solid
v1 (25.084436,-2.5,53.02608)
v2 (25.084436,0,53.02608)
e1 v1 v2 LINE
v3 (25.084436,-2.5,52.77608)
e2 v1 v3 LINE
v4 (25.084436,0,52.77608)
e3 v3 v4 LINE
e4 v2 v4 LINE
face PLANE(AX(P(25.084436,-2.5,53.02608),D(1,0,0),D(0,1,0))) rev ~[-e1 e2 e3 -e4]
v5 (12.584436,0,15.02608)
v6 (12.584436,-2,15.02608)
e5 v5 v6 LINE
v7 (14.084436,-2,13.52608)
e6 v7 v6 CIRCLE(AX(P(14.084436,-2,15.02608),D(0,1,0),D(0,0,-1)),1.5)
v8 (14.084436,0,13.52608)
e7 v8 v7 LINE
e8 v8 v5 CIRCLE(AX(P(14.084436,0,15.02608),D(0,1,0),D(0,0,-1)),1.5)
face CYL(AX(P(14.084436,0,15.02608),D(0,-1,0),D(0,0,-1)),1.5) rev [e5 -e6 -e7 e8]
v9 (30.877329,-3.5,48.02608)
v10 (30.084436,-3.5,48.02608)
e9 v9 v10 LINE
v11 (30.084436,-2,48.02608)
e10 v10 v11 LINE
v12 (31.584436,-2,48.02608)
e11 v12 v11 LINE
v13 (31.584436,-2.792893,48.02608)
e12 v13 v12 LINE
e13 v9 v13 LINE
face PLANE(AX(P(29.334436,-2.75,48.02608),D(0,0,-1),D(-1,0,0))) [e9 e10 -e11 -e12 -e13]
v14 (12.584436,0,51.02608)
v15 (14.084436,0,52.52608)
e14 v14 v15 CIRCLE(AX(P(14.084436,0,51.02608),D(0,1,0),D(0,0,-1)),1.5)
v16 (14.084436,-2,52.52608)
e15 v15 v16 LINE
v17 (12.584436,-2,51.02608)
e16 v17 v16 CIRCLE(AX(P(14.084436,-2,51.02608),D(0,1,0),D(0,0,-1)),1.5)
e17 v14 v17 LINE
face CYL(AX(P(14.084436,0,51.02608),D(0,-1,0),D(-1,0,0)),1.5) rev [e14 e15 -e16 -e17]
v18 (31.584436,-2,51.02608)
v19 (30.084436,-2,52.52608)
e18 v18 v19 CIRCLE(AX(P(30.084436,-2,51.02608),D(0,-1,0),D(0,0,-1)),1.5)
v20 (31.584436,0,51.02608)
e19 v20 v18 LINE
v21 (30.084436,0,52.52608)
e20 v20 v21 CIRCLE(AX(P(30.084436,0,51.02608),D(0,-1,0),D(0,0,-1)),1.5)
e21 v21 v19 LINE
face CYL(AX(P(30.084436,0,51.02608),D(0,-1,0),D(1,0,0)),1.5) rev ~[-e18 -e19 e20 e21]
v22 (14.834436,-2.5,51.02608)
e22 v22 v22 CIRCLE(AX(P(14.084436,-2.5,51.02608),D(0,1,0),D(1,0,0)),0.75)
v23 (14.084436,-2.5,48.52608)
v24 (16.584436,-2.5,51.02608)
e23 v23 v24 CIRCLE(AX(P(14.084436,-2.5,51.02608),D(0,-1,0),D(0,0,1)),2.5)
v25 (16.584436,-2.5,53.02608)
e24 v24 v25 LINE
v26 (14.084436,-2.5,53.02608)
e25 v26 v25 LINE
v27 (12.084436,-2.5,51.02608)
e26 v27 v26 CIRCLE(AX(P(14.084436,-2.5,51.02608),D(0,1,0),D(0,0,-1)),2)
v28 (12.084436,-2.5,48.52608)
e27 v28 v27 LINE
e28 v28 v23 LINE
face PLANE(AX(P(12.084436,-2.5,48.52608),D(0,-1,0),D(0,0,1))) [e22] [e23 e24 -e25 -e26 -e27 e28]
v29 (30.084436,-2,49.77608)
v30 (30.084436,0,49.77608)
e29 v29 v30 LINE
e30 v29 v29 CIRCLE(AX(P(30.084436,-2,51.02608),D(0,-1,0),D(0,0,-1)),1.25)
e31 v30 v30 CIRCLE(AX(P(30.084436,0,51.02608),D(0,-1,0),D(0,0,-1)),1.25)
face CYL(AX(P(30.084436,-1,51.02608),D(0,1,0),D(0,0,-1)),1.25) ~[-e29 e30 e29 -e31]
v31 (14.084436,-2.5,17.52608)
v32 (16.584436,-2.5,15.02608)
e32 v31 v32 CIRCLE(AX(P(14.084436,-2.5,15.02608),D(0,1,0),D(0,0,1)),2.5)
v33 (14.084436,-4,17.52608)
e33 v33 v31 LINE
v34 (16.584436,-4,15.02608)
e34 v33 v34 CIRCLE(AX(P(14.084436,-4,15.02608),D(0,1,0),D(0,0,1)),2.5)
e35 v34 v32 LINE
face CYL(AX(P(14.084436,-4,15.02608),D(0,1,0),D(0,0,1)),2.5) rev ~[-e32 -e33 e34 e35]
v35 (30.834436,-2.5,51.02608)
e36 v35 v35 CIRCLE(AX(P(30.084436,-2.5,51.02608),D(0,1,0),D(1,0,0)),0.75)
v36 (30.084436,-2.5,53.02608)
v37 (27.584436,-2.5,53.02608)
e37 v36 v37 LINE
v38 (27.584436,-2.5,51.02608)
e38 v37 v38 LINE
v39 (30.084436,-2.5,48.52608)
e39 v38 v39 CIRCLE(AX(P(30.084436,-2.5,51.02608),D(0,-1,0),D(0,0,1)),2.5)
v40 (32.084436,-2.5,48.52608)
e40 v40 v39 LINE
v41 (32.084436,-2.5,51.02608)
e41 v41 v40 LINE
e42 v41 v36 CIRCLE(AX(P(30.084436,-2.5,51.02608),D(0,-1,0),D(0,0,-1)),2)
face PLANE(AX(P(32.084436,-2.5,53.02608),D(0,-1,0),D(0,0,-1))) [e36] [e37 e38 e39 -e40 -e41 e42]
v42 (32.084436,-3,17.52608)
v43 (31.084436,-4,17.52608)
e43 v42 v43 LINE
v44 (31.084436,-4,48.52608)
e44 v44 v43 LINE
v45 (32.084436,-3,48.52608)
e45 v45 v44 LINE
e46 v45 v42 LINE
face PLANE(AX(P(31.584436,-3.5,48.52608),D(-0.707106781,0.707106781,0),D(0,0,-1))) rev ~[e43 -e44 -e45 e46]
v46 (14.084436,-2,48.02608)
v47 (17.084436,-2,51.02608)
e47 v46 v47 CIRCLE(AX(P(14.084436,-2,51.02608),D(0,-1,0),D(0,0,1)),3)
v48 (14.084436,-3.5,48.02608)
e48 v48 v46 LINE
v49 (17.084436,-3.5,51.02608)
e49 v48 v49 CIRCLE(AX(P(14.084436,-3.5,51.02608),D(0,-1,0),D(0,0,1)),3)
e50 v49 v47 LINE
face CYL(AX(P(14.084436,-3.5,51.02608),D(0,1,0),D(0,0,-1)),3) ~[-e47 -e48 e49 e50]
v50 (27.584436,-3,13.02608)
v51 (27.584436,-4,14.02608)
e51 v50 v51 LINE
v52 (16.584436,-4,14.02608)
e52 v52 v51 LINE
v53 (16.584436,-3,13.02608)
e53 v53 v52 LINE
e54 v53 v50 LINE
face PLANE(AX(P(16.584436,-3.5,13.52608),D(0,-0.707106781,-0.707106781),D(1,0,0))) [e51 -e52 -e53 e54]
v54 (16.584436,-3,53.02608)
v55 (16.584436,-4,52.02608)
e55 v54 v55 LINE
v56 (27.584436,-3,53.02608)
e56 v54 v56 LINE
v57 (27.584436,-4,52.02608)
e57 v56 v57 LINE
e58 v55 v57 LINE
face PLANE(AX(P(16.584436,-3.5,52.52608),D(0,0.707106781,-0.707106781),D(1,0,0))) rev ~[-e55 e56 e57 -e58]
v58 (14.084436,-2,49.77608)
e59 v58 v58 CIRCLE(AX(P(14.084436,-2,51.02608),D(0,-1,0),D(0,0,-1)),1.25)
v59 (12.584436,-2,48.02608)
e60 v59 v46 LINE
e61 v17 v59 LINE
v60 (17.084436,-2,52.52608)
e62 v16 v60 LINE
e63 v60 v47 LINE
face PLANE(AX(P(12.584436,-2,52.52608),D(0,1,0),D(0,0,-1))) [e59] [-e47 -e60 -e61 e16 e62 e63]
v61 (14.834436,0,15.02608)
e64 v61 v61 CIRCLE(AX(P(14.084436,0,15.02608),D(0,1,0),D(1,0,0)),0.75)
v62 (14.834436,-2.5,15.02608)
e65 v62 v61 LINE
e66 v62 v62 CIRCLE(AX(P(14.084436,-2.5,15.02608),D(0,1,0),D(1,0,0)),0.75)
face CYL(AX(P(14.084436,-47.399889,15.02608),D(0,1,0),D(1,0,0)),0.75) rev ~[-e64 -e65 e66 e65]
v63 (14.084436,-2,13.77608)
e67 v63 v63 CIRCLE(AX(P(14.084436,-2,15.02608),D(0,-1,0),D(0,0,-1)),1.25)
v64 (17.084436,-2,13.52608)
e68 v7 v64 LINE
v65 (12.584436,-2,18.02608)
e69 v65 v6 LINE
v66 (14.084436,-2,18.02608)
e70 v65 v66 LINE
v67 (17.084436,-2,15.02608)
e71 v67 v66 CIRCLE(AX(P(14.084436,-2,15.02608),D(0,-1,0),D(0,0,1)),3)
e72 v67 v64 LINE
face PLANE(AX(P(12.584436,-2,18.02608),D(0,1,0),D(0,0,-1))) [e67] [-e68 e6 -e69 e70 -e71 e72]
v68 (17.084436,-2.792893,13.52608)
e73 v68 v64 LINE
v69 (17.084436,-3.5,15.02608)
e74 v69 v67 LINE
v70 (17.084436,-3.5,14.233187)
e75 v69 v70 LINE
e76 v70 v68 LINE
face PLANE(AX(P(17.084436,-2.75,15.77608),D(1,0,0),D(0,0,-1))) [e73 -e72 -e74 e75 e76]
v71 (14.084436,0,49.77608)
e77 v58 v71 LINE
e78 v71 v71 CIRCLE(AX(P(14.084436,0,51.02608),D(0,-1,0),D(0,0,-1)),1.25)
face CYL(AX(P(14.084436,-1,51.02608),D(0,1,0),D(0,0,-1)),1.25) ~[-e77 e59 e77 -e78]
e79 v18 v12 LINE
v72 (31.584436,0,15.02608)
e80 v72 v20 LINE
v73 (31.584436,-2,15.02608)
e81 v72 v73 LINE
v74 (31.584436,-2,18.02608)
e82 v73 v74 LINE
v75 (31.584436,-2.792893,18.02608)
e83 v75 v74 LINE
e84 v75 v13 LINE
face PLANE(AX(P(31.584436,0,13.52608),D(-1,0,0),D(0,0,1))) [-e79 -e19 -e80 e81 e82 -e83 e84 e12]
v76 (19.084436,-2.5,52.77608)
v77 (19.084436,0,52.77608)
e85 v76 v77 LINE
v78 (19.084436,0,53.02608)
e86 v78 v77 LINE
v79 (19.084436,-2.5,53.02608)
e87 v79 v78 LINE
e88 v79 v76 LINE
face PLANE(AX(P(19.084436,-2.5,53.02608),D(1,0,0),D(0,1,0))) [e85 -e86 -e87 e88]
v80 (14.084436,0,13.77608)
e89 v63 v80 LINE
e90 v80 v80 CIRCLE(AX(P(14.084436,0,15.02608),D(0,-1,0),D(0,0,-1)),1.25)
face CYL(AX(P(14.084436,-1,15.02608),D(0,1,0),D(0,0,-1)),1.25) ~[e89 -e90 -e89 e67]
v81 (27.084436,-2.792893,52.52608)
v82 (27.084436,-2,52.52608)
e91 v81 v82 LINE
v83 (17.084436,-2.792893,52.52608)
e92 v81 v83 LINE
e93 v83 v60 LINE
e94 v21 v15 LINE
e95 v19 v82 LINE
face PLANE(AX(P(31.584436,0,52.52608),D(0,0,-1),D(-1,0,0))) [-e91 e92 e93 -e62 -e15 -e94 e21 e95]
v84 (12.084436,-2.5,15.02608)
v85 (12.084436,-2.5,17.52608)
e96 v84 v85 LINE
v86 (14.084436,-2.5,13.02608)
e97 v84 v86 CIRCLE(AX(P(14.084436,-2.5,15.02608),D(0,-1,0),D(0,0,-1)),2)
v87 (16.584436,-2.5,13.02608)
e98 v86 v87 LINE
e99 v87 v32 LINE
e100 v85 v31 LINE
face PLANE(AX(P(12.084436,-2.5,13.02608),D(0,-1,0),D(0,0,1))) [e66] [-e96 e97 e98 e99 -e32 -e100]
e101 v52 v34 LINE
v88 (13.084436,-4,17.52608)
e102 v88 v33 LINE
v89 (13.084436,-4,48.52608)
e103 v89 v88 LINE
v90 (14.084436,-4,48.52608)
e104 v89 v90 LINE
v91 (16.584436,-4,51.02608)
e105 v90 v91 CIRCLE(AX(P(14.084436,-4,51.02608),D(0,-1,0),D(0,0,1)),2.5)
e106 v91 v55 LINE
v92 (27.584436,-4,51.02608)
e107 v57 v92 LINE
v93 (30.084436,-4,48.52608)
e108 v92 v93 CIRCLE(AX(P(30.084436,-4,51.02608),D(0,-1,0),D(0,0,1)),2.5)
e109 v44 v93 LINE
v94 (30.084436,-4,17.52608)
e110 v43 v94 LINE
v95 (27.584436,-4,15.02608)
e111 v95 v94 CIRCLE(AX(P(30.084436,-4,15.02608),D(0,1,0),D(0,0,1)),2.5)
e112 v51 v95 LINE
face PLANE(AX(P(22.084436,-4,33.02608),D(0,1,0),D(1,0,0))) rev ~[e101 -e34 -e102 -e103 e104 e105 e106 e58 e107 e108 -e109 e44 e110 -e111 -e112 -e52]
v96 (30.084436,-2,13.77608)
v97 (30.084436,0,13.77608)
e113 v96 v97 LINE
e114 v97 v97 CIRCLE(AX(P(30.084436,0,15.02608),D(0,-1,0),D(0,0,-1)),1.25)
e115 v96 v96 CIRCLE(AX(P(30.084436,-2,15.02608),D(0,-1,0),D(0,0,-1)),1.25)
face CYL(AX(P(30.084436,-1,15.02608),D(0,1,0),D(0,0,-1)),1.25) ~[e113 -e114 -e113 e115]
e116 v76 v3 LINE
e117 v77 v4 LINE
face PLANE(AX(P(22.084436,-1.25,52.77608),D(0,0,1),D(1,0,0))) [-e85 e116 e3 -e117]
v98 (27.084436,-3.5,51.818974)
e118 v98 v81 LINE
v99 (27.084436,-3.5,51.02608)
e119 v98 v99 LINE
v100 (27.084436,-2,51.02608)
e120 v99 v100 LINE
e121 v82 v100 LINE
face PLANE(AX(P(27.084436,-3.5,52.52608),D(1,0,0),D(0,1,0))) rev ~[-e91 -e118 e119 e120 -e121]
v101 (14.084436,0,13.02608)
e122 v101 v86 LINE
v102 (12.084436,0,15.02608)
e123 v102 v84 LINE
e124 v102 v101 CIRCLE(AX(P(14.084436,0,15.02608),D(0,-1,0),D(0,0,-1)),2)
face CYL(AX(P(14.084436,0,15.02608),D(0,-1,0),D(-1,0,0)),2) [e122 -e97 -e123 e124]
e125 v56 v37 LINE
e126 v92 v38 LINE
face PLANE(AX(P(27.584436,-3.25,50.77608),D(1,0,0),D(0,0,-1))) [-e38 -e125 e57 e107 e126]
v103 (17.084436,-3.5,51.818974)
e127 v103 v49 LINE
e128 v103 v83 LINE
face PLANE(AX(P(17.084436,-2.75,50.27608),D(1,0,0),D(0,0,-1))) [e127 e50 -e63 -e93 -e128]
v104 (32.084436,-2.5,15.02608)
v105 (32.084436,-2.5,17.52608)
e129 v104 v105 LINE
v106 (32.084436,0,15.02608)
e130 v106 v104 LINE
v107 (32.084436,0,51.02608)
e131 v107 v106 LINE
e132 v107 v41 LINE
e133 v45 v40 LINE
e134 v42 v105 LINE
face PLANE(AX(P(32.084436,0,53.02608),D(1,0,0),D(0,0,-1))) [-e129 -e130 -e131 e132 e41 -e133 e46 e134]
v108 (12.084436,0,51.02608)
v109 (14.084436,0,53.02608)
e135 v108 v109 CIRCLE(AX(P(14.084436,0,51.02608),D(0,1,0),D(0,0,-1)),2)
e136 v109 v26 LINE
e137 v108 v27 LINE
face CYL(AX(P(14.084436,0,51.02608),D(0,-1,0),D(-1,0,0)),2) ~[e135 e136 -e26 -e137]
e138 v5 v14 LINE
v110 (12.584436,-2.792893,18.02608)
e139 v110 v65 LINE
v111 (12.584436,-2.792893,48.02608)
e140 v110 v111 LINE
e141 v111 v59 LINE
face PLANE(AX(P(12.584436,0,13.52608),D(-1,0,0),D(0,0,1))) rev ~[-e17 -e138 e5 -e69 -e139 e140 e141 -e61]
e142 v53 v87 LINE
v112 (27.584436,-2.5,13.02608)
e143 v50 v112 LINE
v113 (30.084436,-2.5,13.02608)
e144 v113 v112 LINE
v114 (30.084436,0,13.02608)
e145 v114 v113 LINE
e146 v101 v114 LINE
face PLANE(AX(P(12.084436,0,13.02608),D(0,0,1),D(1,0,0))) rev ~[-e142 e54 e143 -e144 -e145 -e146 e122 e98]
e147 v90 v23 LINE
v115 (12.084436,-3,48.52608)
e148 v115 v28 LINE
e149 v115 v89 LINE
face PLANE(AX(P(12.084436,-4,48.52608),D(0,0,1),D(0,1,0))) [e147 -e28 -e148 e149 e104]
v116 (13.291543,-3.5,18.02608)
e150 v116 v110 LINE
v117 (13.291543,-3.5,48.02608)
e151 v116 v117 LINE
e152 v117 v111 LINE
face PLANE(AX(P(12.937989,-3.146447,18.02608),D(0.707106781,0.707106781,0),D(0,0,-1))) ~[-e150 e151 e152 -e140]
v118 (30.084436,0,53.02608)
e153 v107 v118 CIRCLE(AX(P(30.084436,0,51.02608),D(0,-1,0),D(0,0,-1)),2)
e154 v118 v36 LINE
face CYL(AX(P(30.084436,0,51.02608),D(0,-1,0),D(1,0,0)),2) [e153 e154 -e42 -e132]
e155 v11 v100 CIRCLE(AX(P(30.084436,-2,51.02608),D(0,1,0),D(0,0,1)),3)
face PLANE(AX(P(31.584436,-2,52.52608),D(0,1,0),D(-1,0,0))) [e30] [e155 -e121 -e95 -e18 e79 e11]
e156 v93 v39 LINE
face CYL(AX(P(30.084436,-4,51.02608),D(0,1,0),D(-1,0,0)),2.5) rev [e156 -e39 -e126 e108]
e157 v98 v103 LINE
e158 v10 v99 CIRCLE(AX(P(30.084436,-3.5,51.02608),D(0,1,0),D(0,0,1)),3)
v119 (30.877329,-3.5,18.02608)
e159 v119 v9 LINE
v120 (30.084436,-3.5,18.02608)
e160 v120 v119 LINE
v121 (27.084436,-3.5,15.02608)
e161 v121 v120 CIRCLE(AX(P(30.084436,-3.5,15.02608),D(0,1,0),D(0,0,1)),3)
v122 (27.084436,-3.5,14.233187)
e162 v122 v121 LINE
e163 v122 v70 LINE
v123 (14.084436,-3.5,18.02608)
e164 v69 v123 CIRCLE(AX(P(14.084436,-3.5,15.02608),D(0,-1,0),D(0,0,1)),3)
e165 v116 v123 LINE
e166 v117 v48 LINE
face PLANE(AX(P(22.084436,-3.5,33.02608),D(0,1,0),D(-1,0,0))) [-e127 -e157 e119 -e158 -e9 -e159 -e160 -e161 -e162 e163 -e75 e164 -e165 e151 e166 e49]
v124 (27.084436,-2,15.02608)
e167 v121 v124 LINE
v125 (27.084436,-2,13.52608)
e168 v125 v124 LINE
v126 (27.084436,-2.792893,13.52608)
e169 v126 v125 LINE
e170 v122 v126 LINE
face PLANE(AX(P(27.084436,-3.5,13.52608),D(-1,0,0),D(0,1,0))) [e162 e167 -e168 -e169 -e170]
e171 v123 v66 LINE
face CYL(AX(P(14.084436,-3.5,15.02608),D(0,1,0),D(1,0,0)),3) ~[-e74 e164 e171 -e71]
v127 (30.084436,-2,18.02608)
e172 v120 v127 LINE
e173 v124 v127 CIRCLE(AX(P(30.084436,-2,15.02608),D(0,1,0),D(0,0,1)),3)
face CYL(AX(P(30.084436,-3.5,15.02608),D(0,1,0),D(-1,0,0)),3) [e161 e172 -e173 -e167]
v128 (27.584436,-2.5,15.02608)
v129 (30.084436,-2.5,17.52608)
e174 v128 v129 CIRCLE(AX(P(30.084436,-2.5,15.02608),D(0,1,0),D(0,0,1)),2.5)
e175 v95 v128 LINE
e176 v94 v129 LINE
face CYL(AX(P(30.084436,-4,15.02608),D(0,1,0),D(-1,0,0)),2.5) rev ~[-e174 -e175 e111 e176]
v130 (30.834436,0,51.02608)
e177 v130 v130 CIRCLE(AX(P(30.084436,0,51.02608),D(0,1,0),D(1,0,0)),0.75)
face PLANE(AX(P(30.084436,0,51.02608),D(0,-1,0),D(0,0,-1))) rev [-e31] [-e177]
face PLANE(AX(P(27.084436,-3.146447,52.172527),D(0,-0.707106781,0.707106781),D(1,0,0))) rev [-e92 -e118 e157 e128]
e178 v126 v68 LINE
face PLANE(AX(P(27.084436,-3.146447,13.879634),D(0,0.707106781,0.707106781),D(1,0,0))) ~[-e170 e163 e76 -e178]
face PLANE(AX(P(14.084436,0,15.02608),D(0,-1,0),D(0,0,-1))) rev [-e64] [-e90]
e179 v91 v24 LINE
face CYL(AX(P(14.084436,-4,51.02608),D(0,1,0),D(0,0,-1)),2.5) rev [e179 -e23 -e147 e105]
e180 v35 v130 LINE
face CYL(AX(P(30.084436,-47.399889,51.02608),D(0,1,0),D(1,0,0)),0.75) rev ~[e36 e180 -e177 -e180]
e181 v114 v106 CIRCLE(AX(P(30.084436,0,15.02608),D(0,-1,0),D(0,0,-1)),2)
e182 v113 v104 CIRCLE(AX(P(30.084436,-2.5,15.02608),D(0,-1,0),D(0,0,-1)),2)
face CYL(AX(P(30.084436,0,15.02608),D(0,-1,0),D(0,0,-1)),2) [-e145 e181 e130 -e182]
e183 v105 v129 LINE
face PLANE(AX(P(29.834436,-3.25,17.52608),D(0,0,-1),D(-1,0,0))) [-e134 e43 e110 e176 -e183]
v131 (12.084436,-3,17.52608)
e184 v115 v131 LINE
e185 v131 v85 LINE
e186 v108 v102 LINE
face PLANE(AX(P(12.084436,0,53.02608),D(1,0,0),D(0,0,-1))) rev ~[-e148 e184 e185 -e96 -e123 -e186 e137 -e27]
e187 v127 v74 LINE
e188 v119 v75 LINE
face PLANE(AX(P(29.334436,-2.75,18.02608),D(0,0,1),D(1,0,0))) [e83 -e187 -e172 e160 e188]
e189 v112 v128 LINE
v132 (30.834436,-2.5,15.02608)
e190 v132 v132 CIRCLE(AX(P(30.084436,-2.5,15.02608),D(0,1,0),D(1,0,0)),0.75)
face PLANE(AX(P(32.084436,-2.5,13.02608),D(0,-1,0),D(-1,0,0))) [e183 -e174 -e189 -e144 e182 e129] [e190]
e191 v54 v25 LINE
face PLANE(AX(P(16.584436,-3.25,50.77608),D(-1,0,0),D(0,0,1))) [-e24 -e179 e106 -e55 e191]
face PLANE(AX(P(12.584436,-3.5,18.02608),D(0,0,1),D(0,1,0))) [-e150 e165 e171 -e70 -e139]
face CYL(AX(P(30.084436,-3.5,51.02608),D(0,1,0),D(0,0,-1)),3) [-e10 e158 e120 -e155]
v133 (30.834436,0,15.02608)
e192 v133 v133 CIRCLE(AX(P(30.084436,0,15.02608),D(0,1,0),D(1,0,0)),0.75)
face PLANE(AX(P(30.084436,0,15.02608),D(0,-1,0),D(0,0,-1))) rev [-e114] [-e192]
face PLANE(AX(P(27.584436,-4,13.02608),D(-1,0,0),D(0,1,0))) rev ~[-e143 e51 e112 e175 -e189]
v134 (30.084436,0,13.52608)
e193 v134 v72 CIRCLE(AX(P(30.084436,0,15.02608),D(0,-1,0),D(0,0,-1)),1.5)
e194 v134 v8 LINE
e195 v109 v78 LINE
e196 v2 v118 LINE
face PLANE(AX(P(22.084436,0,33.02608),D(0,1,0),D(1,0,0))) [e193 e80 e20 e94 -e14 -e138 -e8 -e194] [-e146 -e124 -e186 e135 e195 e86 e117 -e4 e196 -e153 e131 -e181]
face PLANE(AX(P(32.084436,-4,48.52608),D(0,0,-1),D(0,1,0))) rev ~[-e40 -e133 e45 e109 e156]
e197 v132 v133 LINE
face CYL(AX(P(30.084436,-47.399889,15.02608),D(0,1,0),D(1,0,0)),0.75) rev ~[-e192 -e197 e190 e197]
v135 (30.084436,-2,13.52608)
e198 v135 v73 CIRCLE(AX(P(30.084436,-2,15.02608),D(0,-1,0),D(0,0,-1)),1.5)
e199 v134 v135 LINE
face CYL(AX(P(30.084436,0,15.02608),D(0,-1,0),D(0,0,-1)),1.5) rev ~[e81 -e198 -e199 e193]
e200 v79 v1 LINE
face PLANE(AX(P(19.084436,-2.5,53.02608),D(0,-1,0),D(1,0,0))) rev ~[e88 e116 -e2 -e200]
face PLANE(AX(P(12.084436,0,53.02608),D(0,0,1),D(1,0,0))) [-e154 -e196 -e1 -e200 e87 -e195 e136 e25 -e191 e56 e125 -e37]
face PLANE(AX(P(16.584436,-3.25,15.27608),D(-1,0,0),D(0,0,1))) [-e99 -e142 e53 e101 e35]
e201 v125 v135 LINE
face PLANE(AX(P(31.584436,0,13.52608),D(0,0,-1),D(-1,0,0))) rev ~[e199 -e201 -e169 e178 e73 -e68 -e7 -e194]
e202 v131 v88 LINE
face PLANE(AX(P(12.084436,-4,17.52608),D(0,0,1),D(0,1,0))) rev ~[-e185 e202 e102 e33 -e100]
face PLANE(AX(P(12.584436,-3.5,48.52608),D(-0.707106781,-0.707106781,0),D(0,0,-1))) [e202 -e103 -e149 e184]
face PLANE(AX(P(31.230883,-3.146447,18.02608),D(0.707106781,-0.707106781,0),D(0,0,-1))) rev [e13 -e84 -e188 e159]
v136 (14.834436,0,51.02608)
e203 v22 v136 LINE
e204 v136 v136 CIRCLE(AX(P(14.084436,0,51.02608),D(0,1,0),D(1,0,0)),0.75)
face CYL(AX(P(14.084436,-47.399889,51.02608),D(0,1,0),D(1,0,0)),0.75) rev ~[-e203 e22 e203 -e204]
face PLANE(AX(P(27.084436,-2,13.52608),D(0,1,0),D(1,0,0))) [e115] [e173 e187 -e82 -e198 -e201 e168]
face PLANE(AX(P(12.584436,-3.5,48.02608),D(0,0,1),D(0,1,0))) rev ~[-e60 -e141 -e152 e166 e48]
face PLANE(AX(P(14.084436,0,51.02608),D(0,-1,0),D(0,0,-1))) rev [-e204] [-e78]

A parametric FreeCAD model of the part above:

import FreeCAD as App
import Part
import Sketcher
from FreeCAD import Vector
Q = App.Units.Quantity


def edges_at(feature, points):
    """Names of the edges that pass closest to the given points."""
    edges = feature.Shape.Edges
    near = lambda p: min(range(len(edges)), key=lambda i: edges[i].distToShape(Part.Vertex(*p))[0])
    return sorted({f"Edge{near(p) + 1}" for p in points})

doc = App.newDocument("Part")
body = doc.addObject("PartDesign::Body", "Body")

sketch1 = body.newObject("Sketcher::SketchObject", "Sketch")
sketch1.AttachmentSupport = (doc.getObject("XZ_Plane"), [""])
sketch1.MapMode = "FlatFace"
sketch1.addGeometry([
    Part.LineSegment(Vector(12, 13, 0), Vector(12, 53, 0)),
    Part.LineSegment(Vector(12, 53, 0), Vector(32, 53, 0)),
    Part.LineSegment(Vector(32, 53, 0), Vector(32, 13, 0)),
    Part.LineSegment(Vector(32, 13, 0), Vector(12, 13, 0)),
], False)
sketch1.addConstraint([
    Sketcher.Constraint("Coincident", 0, 2, 1, 1),
    Sketcher.Constraint("Coincident", 1, 2, 2, 1),
    Sketcher.Constraint("Coincident", 2, 2, 3, 1),
    Sketcher.Constraint("Coincident", 3, 2, 0, 1),
    Sketcher.Constraint("Vertical", 0),
    Sketcher.Constraint("Horizontal", 1),
    Sketcher.Constraint("Vertical", 2),
    Sketcher.Constraint("Horizontal", 3),
    Sketcher.Constraint("DistanceX", 1, 1, 1, 2, Q("20 mm")),
    Sketcher.Constraint("DistanceY", 0, 1, 0, 2, Q("40 mm")),
    Sketcher.Constraint("DistanceY", -1, 1, 0, 2, Q("53.02608 mm")),
    Sketcher.Constraint("DistanceX", -1, 1, 0, 2, Q("12.084436 mm")),
])
pad1 = body.newObject("PartDesign::Pad", "Pad")
pad1.Profile = sketch1
pad1.Length = 4

sketch2 = body.newObject("Sketcher::SketchObject", "Sketch001")
sketch2.AttachmentSupport = (doc.getObject("XZ_Plane"), [""])
sketch2.MapMode = "FlatFace"
sketch2.addGeometry([
    Part.LineSegment(Vector(32, 53, 0), Vector(32, 14, 0)),
    Part.LineSegment(Vector(32, 14, 0), Vector(13, 14, 0)),
    Part.LineSegment(Vector(13, 14, 0), Vector(13, 53, 0)),
    Part.LineSegment(Vector(13, 53, 0), Vector(32, 53, 0)),
], False)
sketch2.addConstraint([
    Sketcher.Constraint("Coincident", 0, 2, 1, 1),
    Sketcher.Constraint("Coincident", 1, 2, 2, 1),
    Sketcher.Constraint("Coincident", 2, 2, 3, 1),
    Sketcher.Constraint("Coincident", 3, 2, 0, 1),
    Sketcher.Constraint("Vertical", 0),
    Sketcher.Constraint("Horizontal", 1),
    Sketcher.Constraint("Vertical", 2),
    Sketcher.Constraint("Horizontal", 3),
    Sketcher.Constraint("DistanceX", 1, 2, 1, 1, Q("19 mm")),
    Sketcher.Constraint("DistanceY", 0, 2, 0, 1, Q("39 mm")),
    Sketcher.Constraint("DistanceY", -1, 1, 0, 2, Q("13.52608 mm")),
    Sketcher.Constraint("DistanceX", -1, 1, 0, 2, Q("31.584436 mm")),
])
pocket1 = body.newObject("PartDesign::Pocket", "Pocket")
pocket1.Profile = sketch2
pocket1.Length = 3.5
pocket1.Reversed = True

sketch3 = body.newObject("Sketcher::SketchObject", "Sketch002")
sketch3.AttachmentSupport = (doc.getObject("YZ_Plane"), [""])
sketch3.MapMode = "FlatFace"
sketch3.AttachmentOffset = App.Placement(Vector(0, 0, 12.584436), App.Rotation())
sketch3.addGeometry([
    Part.LineSegment(Vector(-2, 18, 0), Vector(-3.5, 18, 0)),
    Part.LineSegment(Vector(-3.5, 18, 0), Vector(-3.5, 13.5, 0)),
    Part.LineSegment(Vector(-3.5, 13.5, 0), Vector(-2, 13.5, 0)),
    Part.LineSegment(Vector(-2, 13.5, 0), Vector(-2, 18, 0)),
], False)
sketch3.addConstraint([
    Sketcher.Constraint("Coincident", 0, 2, 1, 1),
    Sketcher.Constraint("Coincident", 1, 2, 2, 1),
    Sketcher.Constraint("Coincident", 2, 2, 3, 1),
    Sketcher.Constraint("Coincident", 3, 2, 0, 1),
    Sketcher.Constraint("Horizontal", 0),
    Sketcher.Constraint("Vertical", 1),
    Sketcher.Constraint("Horizontal", 2),
    Sketcher.Constraint("Vertical", 3),
    Sketcher.Constraint("DistanceX", 0, 2, 0, 1, Q("1.5 mm")),
    Sketcher.Constraint("DistanceY", 1, 2, 1, 1, Q("4.5 mm")),
    Sketcher.Constraint("DistanceX", 2, 2, -1, 1, Q("2 mm")),
    Sketcher.Constraint("DistanceY", -1, 1, 0, 2, Q("18.02608 mm")),
])
pad2 = body.newObject("PartDesign::Pad", "Pad001")
pad2.Profile = sketch3
pad2.Length = 4.5

sketch4 = body.newObject("Sketcher::SketchObject", "Sketch003")
sketch4.AttachmentSupport = (doc.getObject("XY_Plane"), [""])
sketch4.MapMode = "FlatFace"
sketch4.AttachmentOffset = App.Placement(Vector(0, 0, 13.52608), App.Rotation())
sketch4.addGeometry([
    Part.LineSegment(Vector(27.1, -2, 0), Vector(27.1, -3.5, 0)),
    Part.LineSegment(Vector(27.1, -3.5, 0), Vector(31.6, -3.5, 0)),
    Part.LineSegment(Vector(31.6, -3.5, 0), Vector(31.6, -2, 0)),
    Part.LineSegment(Vector(31.6, -2, 0), Vector(27.1, -2, 0)),
], False)
sketch4.addConstraint([
    Sketcher.Constraint("Coincident", 0, 2, 1, 1),
    Sketcher.Constraint("Coincident", 1, 2, 2, 1),
    Sketcher.Constraint("Coincident", 2, 2, 3, 1),
    Sketcher.Constraint("Coincident", 3, 2, 0, 1),
    Sketcher.Constraint("Vertical", 0),
    Sketcher.Constraint("Horizontal", 1),
    Sketcher.Constraint("Vertical", 2),
    Sketcher.Constraint("Horizontal", 3),
    Sketcher.Constraint("DistanceX", 1, 1, 1, 2, Q("4.5 mm")),
    Sketcher.Constraint("DistanceY", 0, 2, 0, 1, Q("1.5 mm")),
    Sketcher.Constraint("DistanceY", 2, 2, -1, 1, Q("2 mm")),
    Sketcher.Constraint("DistanceX", -1, 1, 0, 2, Q("27.084436 mm")),
])
pad3 = body.newObject("PartDesign::Pad", "Pad002")
pad3.Profile = sketch4
pad3.Length = 4.5

sketch5 = body.newObject("Sketcher::SketchObject", "Sketch004")
sketch5.AttachmentSupport = (doc.getObject("YZ_Plane"), [""])
sketch5.MapMode = "FlatFace"
sketch5.AttachmentOffset = App.Placement(Vector(0, 0, 12.584436), App.Rotation())
sketch5.addGeometry([
    Part.LineSegment(Vector(-2, 52.5, 0), Vector(-3.5, 52.5, 0)),
    Part.LineSegment(Vector(-3.5, 52.5, 0), Vector(-3.5, 48, 0)),
    Part.LineSegment(Vector(-3.5, 48, 0), Vector(-2, 48, 0)),
    Part.LineSegment(Vector(-2, 48, 0), Vector(-2, 52.5, 0)),
], False)
sketch5.addConstraint([
    Sketcher.Constraint("Coincident", 0, 2, 1, 1),
    Sketcher.Constraint("Coincident", 1, 2, 2, 1),
    Sketcher.Constraint("Coincident", 2, 2, 3, 1),
    Sketcher.Constraint("Coincident", 3, 2, 0, 1),
    Sketcher.Constraint("Horizontal", 0),
    Sketcher.Constraint("Vertical", 1),
    Sketcher.Constraint("Horizontal", 2),
    Sketcher.Constraint("Vertical", 3),
    Sketcher.Constraint("DistanceX", 0, 2, 0, 1, Q("1.5 mm")),
    Sketcher.Constraint("DistanceY", 1, 2, 1, 1, Q("4.5 mm")),
    Sketcher.Constraint("DistanceX", 2, 2, -1, 1, Q("2 mm")),
    Sketcher.Constraint("DistanceY", -1, 1, 0, 2, Q("52.52608 mm")),
])
pad4 = body.newObject("PartDesign::Pad", "Pad003")
pad4.Profile = sketch5
pad4.Length = 4.5

sketch6 = body.newObject("Sketcher::SketchObject", "Sketch005")
sketch6.AttachmentSupport = (doc.getObject("XY_Plane"), [""])
sketch6.MapMode = "FlatFace"
sketch6.AttachmentOffset = App.Placement(Vector(0, 0, 52.52608), App.Rotation())
sketch6.addGeometry([
    Part.LineSegment(Vector(31.6, -2, 0), Vector(31.6, -3.5, 0)),
    Part.LineSegment(Vector(31.6, -3.5, 0), Vector(27.1, -3.5, 0)),
    Part.LineSegment(Vector(27.1, -3.5, 0), Vector(27.1, -2, 0)),
    Part.LineSegment(Vector(27.1, -2, 0), Vector(31.6, -2, 0)),
], False)
sketch6.addConstraint([
    Sketcher.Constraint("Coincident", 0, 2, 1, 1),
    Sketcher.Constraint("Coincident", 1, 2, 2, 1),
    Sketcher.Constraint("Coincident", 2, 2, 3, 1),
    Sketcher.Constraint("Coincident", 3, 2, 0, 1),
    Sketcher.Constraint("Vertical", 0),
    Sketcher.Constraint("Horizontal", 1),
    Sketcher.Constraint("Vertical", 2),
    Sketcher.Constraint("Horizontal", 3),
    Sketcher.Constraint("DistanceX", 1, 2, 1, 1, Q("4.5 mm")),
    Sketcher.Constraint("DistanceY", 0, 2, 0, 1, Q("1.5 mm")),
    Sketcher.Constraint("DistanceY", 2, 2, -1, 1, Q("2 mm")),
    Sketcher.Constraint("DistanceX", -1, 1, 0, 2, Q("31.584436 mm")),
])
pad5 = body.newObject("PartDesign::Pad", "Pad004")
pad5.Profile = sketch6
pad5.Length = 4.5
pad5.Reversed = True

sketch7 = body.newObject("Sketcher::SketchObject", "Sketch006")
sketch7.AttachmentSupport = (doc.getObject("YZ_Plane"), [""])
sketch7.MapMode = "FlatFace"
sketch7.AttachmentOffset = App.Placement(Vector(0, 0, 12.084436), App.Rotation())
sketch7.addGeometry([
    Part.LineSegment(Vector(-2.5, 13, 0), Vector(-4, 13, 0)),
    Part.LineSegment(Vector(-4, 13, 0), Vector(-4, 17.5, 0)),
    Part.LineSegment(Vector(-4, 17.5, 0), Vector(-2.5, 17.5, 0)),
    Part.LineSegment(Vector(-2.5, 17.5, 0), Vector(-2.5, 13, 0)),
], False)
sketch7.addConstraint([
    Sketcher.Constraint("Coincident", 0, 2, 1, 1),
    Sketcher.Constraint("Coincident", 1, 2, 2, 1),
    Sketcher.Constraint("Coincident", 2, 2, 3, 1),
    Sketcher.Constraint("Coincident", 3, 2, 0, 1),
    Sketcher.Constraint("Horizontal", 0),
    Sketcher.Constraint("Vertical", 1),
    Sketcher.Constraint("Horizontal", 2),
    Sketcher.Constraint("Vertical", 3),
    Sketcher.Constraint("DistanceX", 0, 2, 0, 1, Q("1.5 mm")),
    Sketcher.Constraint("DistanceY", 1, 1, 1, 2, Q("4.5 mm")),
    Sketcher.Constraint("DistanceX", 0, 2, -1, 1, Q("4 mm")),
    Sketcher.Constraint("DistanceY", -1, 1, 0, 2, Q("13.02608 mm")),
])
pocket2 = body.newObject("PartDesign::Pocket", "Pocket001")
pocket2.Profile = sketch7
pocket2.Length = 4.5
pocket2.Reversed = True

sketch8 = body.newObject("Sketcher::SketchObject", "Sketch007")
sketch8.AttachmentSupport = (doc.getObject("XY_Plane"), [""])
sketch8.MapMode = "FlatFace"
sketch8.AttachmentOffset = App.Placement(Vector(0, 0, 13.02608), App.Rotation())
sketch8.addGeometry([
    Part.LineSegment(Vector(32.1, -2.5, 0), Vector(32.1, -4, 0)),
    Part.LineSegment(Vector(32.1, -4, 0), Vector(27.6, -4, 0)),
    Part.LineSegment(Vector(27.6, -4, 0), Vector(27.6, -2.5, 0)),
    Part.LineSegment(Vector(27.6, -2.5, 0), Vector(32.1, -2.5, 0)),
], False)
sketch8.addConstraint([
    Sketcher.Constraint("Coincident", 0, 2, 1, 1),
    Sketcher.Constraint("Coincident", 1, 2, 2, 1),
    Sketcher.Constraint("Coincident", 2, 2, 3, 1),
    Sketcher.Constraint("Coincident", 3, 2, 0, 1),
    Sketcher.Constraint("Vertical", 0),
    Sketcher.Constraint("Horizontal", 1),
    Sketcher.Constraint("Vertical", 2),
    Sketcher.Constraint("Horizontal", 3),
    Sketcher.Constraint("DistanceX", 1, 2, 1, 1, Q("4.5 mm")),
    Sketcher.Constraint("DistanceY", 0, 2, 0, 1, Q("1.5 mm")),
    Sketcher.Constraint("DistanceY", 0, 2, -1, 1, Q("4 mm")),
    Sketcher.Constraint("DistanceX", -1, 1, 0, 2, Q("32.084436 mm")),
])
pocket3 = body.newObject("PartDesign::Pocket", "Pocket002")
pocket3.Profile = sketch8
pocket3.Length = 4.5
pocket3.Reversed = True

sketch9 = body.newObject("Sketcher::SketchObject", "Sketch008")
sketch9.AttachmentSupport = (doc.getObject("YZ_Plane"), [""])
sketch9.MapMode = "FlatFace"
sketch9.AttachmentOffset = App.Placement(Vector(0, 0, 12.084436), App.Rotation())
sketch9.addGeometry([
    Part.LineSegment(Vector(-2.5, 48.5, 0), Vector(-4, 48.5, 0)),
    Part.LineSegment(Vector(-4, 48.5, 0), Vector(-4, 53, 0)),
    Part.LineSegment(Vector(-4, 53, 0), Vector(-2.5, 53, 0)),
    Part.LineSegment(Vector(-2.5, 53, 0), Vector(-2.5, 48.5, 0)),
], False)
sketch9.addConstraint([
    Sketcher.Constraint("Coincident", 0, 2, 1, 1),
    Sketcher.Constraint("Coincident", 1, 2, 2, 1),
    Sketcher.Constraint("Coincident", 2, 2, 3, 1),
    Sketcher.Constraint("Coincident", 3, 2, 0, 1),
    Sketcher.Constraint("Horizontal", 0),
    Sketcher.Constraint("Vertical", 1),
    Sketcher.Constraint("Horizontal", 2),
    Sketcher.Constraint("Vertical", 3),
    Sketcher.Constraint("DistanceX", 0, 2, 0, 1, Q("1.5 mm")),
    Sketcher.Constraint("DistanceY", 1, 1, 1, 2, Q("4.5 mm")),
    Sketcher.Constraint("DistanceX", 0, 2, -1, 1, Q("4 mm")),
    Sketcher.Constraint("DistanceY", -1, 1, 0, 2, Q("48.52608 mm")),
])
pocket4 = body.newObject("PartDesign::Pocket", "Pocket003")
pocket4.Profile = sketch9
pocket4.Length = 4.5
pocket4.Reversed = True

sketch10 = body.newObject("Sketcher::SketchObject", "Sketch009")
sketch10.AttachmentSupport = (doc.getObject("YZ_Plane"), [""])
sketch10.MapMode = "FlatFace"
sketch10.AttachmentOffset = App.Placement(Vector(0, 0, 32.084436), App.Rotation())
sketch10.addGeometry([
    Part.LineSegment(Vector(-2.5, 53, 0), Vector(-4, 53, 0)),
    Part.LineSegment(Vector(-4, 53, 0), Vector(-4, 48.5, 0)),
    Part.LineSegment(Vector(-4, 48.5, 0), Vector(-2.5, 48.5, 0)),
    Part.LineSegment(Vector(-2.5, 48.5, 0), Vector(-2.5, 53, 0)),
], False)
sketch10.addConstraint([
    Sketcher.Constraint("Coincident", 0, 2, 1, 1),
    Sketcher.Constraint("Coincident", 1, 2, 2, 1),
    Sketcher.Constraint("Coincident", 2, 2, 3, 1),
    Sketcher.Constraint("Coincident", 3, 2, 0, 1),
    Sketcher.Constraint("Horizontal", 0),
    Sketcher.Constraint("Vertical", 1),
    Sketcher.Constraint("Horizontal", 2),
    Sketcher.Constraint("Vertical", 3),
    Sketcher.Constraint("DistanceX", 0, 2, 0, 1, Q("1.5 mm")),
    Sketcher.Constraint("DistanceY", 1, 2, 1, 1, Q("4.5 mm")),
    Sketcher.Constraint("DistanceX", 0, 2, -1, 1, Q("4 mm")),
    Sketcher.Constraint("DistanceY", -1, 1, 0, 2, Q("53.02608 mm")),
])
pocket5 = body.newObject("PartDesign::Pocket", "Pocket004")
pocket5.Profile = sketch10
pocket5.Length = 4.5

sketch11 = body.newObject("Sketcher::SketchObject", "Sketch010")
sketch11.AttachmentSupport = (doc.getObject("XY_Plane"), [""])
sketch11.MapMode = "FlatFace"
sketch11.AttachmentOffset = App.Placement(Vector(0, 0, 53.02608), App.Rotation())
sketch11.addGeometry([
    Part.LineSegment(Vector(19.1, 0, 0), Vector(19.1, -2.5, 0)),
    Part.LineSegment(Vector(19.1, -2.5, 0), Vector(25.1, -2.5, 0)),
    Part.LineSegment(Vector(25.1, -2.5, 0), Vector(25.1, 0, 0)),
    Part.LineSegment(Vector(25.1, 0, 0), Vector(19.1, 0, 0)),
], False)
sketch11.addConstraint([
    Sketcher.Constraint("Coincident", 0, 2, 1, 1),
    Sketcher.Constraint("Coincident", 1, 2, 2, 1),
    Sketcher.Constraint("Coincident", 2, 2, 3, 1),
    Sketcher.Constraint("Coincident", 3, 2, 0, 1),
    Sketcher.Constraint("Vertical", 0),
    Sketcher.Constraint("Horizontal", 1),
    Sketcher.Constraint("Vertical", 2),
    Sketcher.Constraint("Horizontal", 3),
    Sketcher.Constraint("PointOnObject", 2, 2, -1),
    Sketcher.Constraint("DistanceX", 1, 1, 1, 2, Q("6 mm")),
    Sketcher.Constraint("DistanceY", 0, 2, 0, 1, Q("2.5 mm")),
    Sketcher.Constraint("DistanceX", -1, 1, 0, 2, Q("19.084436 mm")),
])
pocket6 = body.newObject("PartDesign::Pocket", "Pocket005")
pocket6.Profile = sketch11
pocket6.Length = 0.25

sketch12 = body.newObject("Sketcher::SketchObject", "Sketch011")
sketch12.AttachmentSupport = (doc.getObject("XY_Plane"), [""])
sketch12.MapMode = "FlatFace"
sketch12.AttachmentOffset = App.Placement(Vector(0, 0, 15.02608), App.Rotation())
sketch12.addGeometry([
    Part.LineSegment(Vector(30.1, 0, 0), Vector(30.1, -2, 0)),
    Part.LineSegment(Vector(30.1, -2, 0), Vector(31.3, -2, 0)),
    Part.LineSegment(Vector(31.3, -2, 0), Vector(31.3, 0, 0)),
    Part.LineSegment(Vector(31.3, 0, 0), Vector(30.1, 0, 0)),
], False)
sketch12.addGeometry(Part.LineSegment(Vector(30.1, 0, 0), Vector(30.1, -2, 0)), True)
sketch12.addConstraint([
    Sketcher.Constraint("Coincident", 0, 2, 1, 1),
    Sketcher.Constraint("Coincident", 1, 2, 2, 1),
    Sketcher.Constraint("Coincident", 2, 2, 3, 1),
    Sketcher.Constraint("Coincident", 3, 2, 0, 1),
    Sketcher.Constraint("Vertical", 0),
    Sketcher.Constraint("Horizontal", 1),
    Sketcher.Constraint("Vertical", 2),
    Sketcher.Constraint("Horizontal", 3),
    Sketcher.Constraint("Vertical", 4),
    Sketcher.Constraint("Coincident", 4, 1, 3, 2),
    Sketcher.Constraint("PointOnObject", 2, 2, -1),
    Sketcher.Constraint("Horizontal", 1, 2, 4, 2),
    Sketcher.Constraint("DistanceY", 0, 2, 0, 1, Q("2 mm")),
    Sketcher.Constraint("DistanceX", 1, 1, 1, 2, Q("1.25 mm")),
    Sketcher.Constraint("DistanceX", -1, 1, 0, 2, Q("30.084436 mm")),
])
revolution = body.newObject("PartDesign::Revolution", "Revolution")
revolution.Profile = sketch12
revolution.ReferenceAxis = (sketch12, ["Axis0"])
revolution.Angle = 360

sketch13 = body.newObject("Sketcher::SketchObject", "Sketch012")
sketch13.AttachmentSupport = (doc.getObject("XY_Plane"), [""])
sketch13.MapMode = "FlatFace"
sketch13.AttachmentOffset = App.Placement(Vector(0, 0, 15.02608), App.Rotation())
sketch13.addGeometry([
    Part.LineSegment(Vector(14.1, 0, 0), Vector(14.1, -2, 0)),
    Part.LineSegment(Vector(14.1, -2, 0), Vector(15.3, -2, 0)),
    Part.LineSegment(Vector(15.3, -2, 0), Vector(15.3, 0, 0)),
    Part.LineSegment(Vector(15.3, 0, 0), Vector(14.1, 0, 0)),
], False)
sketch13.addGeometry(Part.LineSegment(Vector(14.1, 0, 0), Vector(14.1, -2, 0)), True)
sketch13.addConstraint([
    Sketcher.Constraint("Coincident", 0, 2, 1, 1),
    Sketcher.Constraint("Coincident", 1, 2, 2, 1),
    Sketcher.Constraint("Coincident", 2, 2, 3, 1),
    Sketcher.Constraint("Coincident", 3, 2, 0, 1),
    Sketcher.Constraint("Vertical", 0),
    Sketcher.Constraint("Horizontal", 1),
    Sketcher.Constraint("Vertical", 2),
    Sketcher.Constraint("Horizontal", 3),
    Sketcher.Constraint("Vertical", 4),
    Sketcher.Constraint("Coincident", 4, 1, 3, 2),
    Sketcher.Constraint("PointOnObject", 2, 2, -1),
    Sketcher.Constraint("Horizontal", 1, 2, 4, 2),
    Sketcher.Constraint("DistanceY", 0, 2, 0, 1, Q("2 mm")),
    Sketcher.Constraint("DistanceX", 1, 1, 1, 2, Q("1.25 mm")),
    Sketcher.Constraint("DistanceX", -1, 1, 0, 2, Q("14.084436 mm")),
])
revolution2 = body.newObject("PartDesign::Revolution", "Revolution001")
revolution2.Profile = sketch13
revolution2.ReferenceAxis = (sketch13, ["Axis0"])
revolution2.Angle = 360

sketch14 = body.newObject("Sketcher::SketchObject", "Sketch013")
sketch14.AttachmentSupport = (doc.getObject("XY_Plane"), [""])
sketch14.MapMode = "FlatFace"
sketch14.AttachmentOffset = App.Placement(Vector(0, 0, 51.02608), App.Rotation())
sketch14.addGeometry([
    Part.LineSegment(Vector(14.1, 0, 0), Vector(14.1, -2, 0)),
    Part.LineSegment(Vector(14.1, -2, 0), Vector(15.3, -2, 0)),
    Part.LineSegment(Vector(15.3, -2, 0), Vector(15.3, 0, 0)),
    Part.LineSegment(Vector(15.3, 0, 0), Vector(14.1, 0, 0)),
], False)
sketch14.addGeometry(Part.LineSegment(Vector(14.1, 0, 0), Vector(14.1, -2, 0)), True)
sketch14.addConstraint([
    Sketcher.Constraint("Coincident", 0, 2, 1, 1),
    Sketcher.Constraint("Coincident", 1, 2, 2, 1),
    Sketcher.Constraint("Coincident", 2, 2, 3, 1),
    Sketcher.Constraint("Coincident", 3, 2, 0, 1),
    Sketcher.Constraint("Vertical", 0),
    Sketcher.Constraint("Horizontal", 1),
    Sketcher.Constraint("Vertical", 2),
    Sketcher.Constraint("Horizontal", 3),
    Sketcher.Constraint("Vertical", 4),
    Sketcher.Constraint("Coincident", 4, 1, 3, 2),
    Sketcher.Constraint("PointOnObject", 2, 2, -1),
    Sketcher.Constraint("Horizontal", 1, 2, 4, 2),
    Sketcher.Constraint("DistanceY", 0, 2, 0, 1, Q("2 mm")),
    Sketcher.Constraint("DistanceX", 1, 1, 1, 2, Q("1.25 mm")),
    Sketcher.Constraint("DistanceX", -1, 1, 0, 2, Q("14.084436 mm")),
])
revolution3 = body.newObject("PartDesign::Revolution", "Revolution002")
revolution3.Profile = sketch14
revolution3.ReferenceAxis = (sketch14, ["Axis0"])
revolution3.Angle = 360

sketch15 = body.newObject("Sketcher::SketchObject", "Sketch014")
sketch15.AttachmentSupport = (doc.getObject("XY_Plane"), [""])
sketch15.MapMode = "FlatFace"
sketch15.AttachmentOffset = App.Placement(Vector(0, 0, 51.02608), App.Rotation())
sketch15.addGeometry([
    Part.LineSegment(Vector(30.1, 0, 0), Vector(30.1, -2, 0)),
    Part.LineSegment(Vector(30.1, -2, 0), Vector(31.3, -2, 0)),
    Part.LineSegment(Vector(31.3, -2, 0), Vector(31.3, 0, 0)),
    Part.LineSegment(Vector(31.3, 0, 0), Vector(30.1, 0, 0)),
], False)
sketch15.addGeometry(Part.LineSegment(Vector(30.1, 0, 0), Vector(30.1, -2, 0)), True)
sketch15.addConstraint([
    Sketcher.Constraint("Coincident", 0, 2, 1, 1),
    Sketcher.Constraint("Coincident", 1, 2, 2, 1),
    Sketcher.Constraint("Coincident", 2, 2, 3, 1),
    Sketcher.Constraint("Coincident", 3, 2, 0, 1),
    Sketcher.Constraint("Vertical", 0),
    Sketcher.Constraint("Horizontal", 1),
    Sketcher.Constraint("Vertical", 2),
    Sketcher.Constraint("Horizontal", 3),
    Sketcher.Constraint("Vertical", 4),
    Sketcher.Constraint("Coincident", 4, 1, 3, 2),
    Sketcher.Constraint("PointOnObject", 2, 2, -1),
    Sketcher.Constraint("Horizontal", 1, 2, 4, 2),
    Sketcher.Constraint("DistanceY", 0, 2, 0, 1, Q("2 mm")),
    Sketcher.Constraint("DistanceX", 1, 1, 1, 2, Q("1.25 mm")),
    Sketcher.Constraint("DistanceX", -1, 1, 0, 2, Q("30.084436 mm")),
])
revolution4 = body.newObject("PartDesign::Revolution", "Revolution003")
revolution4.Profile = sketch15
revolution4.ReferenceAxis = (sketch15, ["Axis0"])
revolution4.Angle = 360

sketch16 = body.newObject("Sketcher::SketchObject", "Sketch015")
sketch16.AttachmentSupport = (doc.getObject("XZ_Plane"), [""])
sketch16.MapMode = "FlatFace"
sketch16.AttachmentOffset = App.Placement(Vector(0, 0, 2.5), App.Rotation())
sketch16.addGeometry([
    Part.Circle(Vector(30.1, 51, 0), Vector(0, 0, 1), 0.8),
    Part.Circle(Vector(14.1, 51, 0), Vector(0, 0, 1), 0.8),
    Part.Circle(Vector(14.1, 15, 0), Vector(0, 0, 1), 0.8),
    Part.Circle(Vector(30.1, 15, 0), Vector(0, 0, 1), 0.8),
], False)
sketch16.addConstraint([
    Sketcher.Constraint("Equal", 0, 1),
    Sketcher.Constraint("Equal", 1, 2),
    Sketcher.Constraint("Equal", 2, 3),
    Sketcher.Constraint("Horizontal", 0, 3, 1, 3),
    Sketcher.Constraint("Horizontal", 2, 3, 3, 3),
    Sketcher.Constraint("Vertical", 1, 3, 2, 3),
    Sketcher.Constraint("Vertical", 0, 3, 3, 3),
    Sketcher.Constraint("Diameter", 0, Q("1.5 mm")),
    Sketcher.Constraint("DistanceX", 1, 3, 0, 3, Q("16 mm")),
    Sketcher.Constraint("DistanceY", 2, 3, 1, 3, Q("36 mm")),
    Sketcher.Constraint("DistanceY", -1, 1, 0, 3, Q("51.02608 mm")),
    Sketcher.Constraint("DistanceX", -1, 1, 0, 3, Q("30.084436 mm")),
])
doc.recompute()
hole = body.newObject("PartDesign::Hole", "Hole")
hole.Profile = sketch16
hole.ThreadType = "None"
hole.Diameter = 1.5
hole.DepthType = "ThroughAll"
doc.recompute()

chamfer = body.newObject("PartDesign::Chamfer", "Chamfer")
chamfer.Base = (hole, edges_at(hole, [
    (12.584, -3.5, 33.026),
    (22.084, -3.5, 13.526),
    (22.084, -3.5, 52.526),
    (31.584, -3.5, 33.026),
]))
chamfer.Size = 0.707107
doc.recompute()

chamfer2 = body.newObject("PartDesign::Chamfer", "Chamfer001")
chamfer2.Base = (chamfer, edges_at(chamfer, [
    (22.084, -4, 53.026),
    (32.084, -4, 33.026),
    (12.084, -4, 33.026),
    (22.084, -4, 13.026),
]))
chamfer2.Size = 1
doc.recompute()

fillet = body.newObject("PartDesign::Fillet", "Fillet")
fillet.Base = (chamfer2, edges_at(chamfer2, [
    (12.584, -1, 13.526),
    (31.584, -1, 13.526),
    (12.584, -1, 52.526),
    (31.584, -1, 52.526),
]))
fillet.Radius = 1.5
doc.recompute()

fillet2 = body.newObject("PartDesign::Fillet", "Fillet001")
fillet2.Base = (fillet, edges_at(fillet, [
    (12.084, -1.25, 53.026),
    (32.084, -1.25, 53.026),
    (12.084, -1.25, 13.026),
    (32.084, -1.25, 13.026),
]))
fillet2.Radius = 2
doc.recompute()

fillet3 = body.newObject("PartDesign::Fillet", "Fillet002")
fillet3.Base = (fillet2, edges_at(fillet2, [
    (27.584, -3.25, 17.526),
    (16.584, -3.25, 48.526),
    (27.584, -3.25, 48.526),
    (16.584, -3.25, 17.526),
]))
fillet3.Radius = 2.5
doc.recompute()

fillet4 = body.newObject("PartDesign::Fillet", "Fillet003")
fillet4.Base = (fillet3, edges_at(fillet3, [
    (17.084, -2.75, 18.026),
    (27.084, -2.75, 18.026),
    (17.084, -2.75, 48.026),
    (27.084, -2.75, 48.026),
]))
fillet4.Radius = 3

doc.recompute()
